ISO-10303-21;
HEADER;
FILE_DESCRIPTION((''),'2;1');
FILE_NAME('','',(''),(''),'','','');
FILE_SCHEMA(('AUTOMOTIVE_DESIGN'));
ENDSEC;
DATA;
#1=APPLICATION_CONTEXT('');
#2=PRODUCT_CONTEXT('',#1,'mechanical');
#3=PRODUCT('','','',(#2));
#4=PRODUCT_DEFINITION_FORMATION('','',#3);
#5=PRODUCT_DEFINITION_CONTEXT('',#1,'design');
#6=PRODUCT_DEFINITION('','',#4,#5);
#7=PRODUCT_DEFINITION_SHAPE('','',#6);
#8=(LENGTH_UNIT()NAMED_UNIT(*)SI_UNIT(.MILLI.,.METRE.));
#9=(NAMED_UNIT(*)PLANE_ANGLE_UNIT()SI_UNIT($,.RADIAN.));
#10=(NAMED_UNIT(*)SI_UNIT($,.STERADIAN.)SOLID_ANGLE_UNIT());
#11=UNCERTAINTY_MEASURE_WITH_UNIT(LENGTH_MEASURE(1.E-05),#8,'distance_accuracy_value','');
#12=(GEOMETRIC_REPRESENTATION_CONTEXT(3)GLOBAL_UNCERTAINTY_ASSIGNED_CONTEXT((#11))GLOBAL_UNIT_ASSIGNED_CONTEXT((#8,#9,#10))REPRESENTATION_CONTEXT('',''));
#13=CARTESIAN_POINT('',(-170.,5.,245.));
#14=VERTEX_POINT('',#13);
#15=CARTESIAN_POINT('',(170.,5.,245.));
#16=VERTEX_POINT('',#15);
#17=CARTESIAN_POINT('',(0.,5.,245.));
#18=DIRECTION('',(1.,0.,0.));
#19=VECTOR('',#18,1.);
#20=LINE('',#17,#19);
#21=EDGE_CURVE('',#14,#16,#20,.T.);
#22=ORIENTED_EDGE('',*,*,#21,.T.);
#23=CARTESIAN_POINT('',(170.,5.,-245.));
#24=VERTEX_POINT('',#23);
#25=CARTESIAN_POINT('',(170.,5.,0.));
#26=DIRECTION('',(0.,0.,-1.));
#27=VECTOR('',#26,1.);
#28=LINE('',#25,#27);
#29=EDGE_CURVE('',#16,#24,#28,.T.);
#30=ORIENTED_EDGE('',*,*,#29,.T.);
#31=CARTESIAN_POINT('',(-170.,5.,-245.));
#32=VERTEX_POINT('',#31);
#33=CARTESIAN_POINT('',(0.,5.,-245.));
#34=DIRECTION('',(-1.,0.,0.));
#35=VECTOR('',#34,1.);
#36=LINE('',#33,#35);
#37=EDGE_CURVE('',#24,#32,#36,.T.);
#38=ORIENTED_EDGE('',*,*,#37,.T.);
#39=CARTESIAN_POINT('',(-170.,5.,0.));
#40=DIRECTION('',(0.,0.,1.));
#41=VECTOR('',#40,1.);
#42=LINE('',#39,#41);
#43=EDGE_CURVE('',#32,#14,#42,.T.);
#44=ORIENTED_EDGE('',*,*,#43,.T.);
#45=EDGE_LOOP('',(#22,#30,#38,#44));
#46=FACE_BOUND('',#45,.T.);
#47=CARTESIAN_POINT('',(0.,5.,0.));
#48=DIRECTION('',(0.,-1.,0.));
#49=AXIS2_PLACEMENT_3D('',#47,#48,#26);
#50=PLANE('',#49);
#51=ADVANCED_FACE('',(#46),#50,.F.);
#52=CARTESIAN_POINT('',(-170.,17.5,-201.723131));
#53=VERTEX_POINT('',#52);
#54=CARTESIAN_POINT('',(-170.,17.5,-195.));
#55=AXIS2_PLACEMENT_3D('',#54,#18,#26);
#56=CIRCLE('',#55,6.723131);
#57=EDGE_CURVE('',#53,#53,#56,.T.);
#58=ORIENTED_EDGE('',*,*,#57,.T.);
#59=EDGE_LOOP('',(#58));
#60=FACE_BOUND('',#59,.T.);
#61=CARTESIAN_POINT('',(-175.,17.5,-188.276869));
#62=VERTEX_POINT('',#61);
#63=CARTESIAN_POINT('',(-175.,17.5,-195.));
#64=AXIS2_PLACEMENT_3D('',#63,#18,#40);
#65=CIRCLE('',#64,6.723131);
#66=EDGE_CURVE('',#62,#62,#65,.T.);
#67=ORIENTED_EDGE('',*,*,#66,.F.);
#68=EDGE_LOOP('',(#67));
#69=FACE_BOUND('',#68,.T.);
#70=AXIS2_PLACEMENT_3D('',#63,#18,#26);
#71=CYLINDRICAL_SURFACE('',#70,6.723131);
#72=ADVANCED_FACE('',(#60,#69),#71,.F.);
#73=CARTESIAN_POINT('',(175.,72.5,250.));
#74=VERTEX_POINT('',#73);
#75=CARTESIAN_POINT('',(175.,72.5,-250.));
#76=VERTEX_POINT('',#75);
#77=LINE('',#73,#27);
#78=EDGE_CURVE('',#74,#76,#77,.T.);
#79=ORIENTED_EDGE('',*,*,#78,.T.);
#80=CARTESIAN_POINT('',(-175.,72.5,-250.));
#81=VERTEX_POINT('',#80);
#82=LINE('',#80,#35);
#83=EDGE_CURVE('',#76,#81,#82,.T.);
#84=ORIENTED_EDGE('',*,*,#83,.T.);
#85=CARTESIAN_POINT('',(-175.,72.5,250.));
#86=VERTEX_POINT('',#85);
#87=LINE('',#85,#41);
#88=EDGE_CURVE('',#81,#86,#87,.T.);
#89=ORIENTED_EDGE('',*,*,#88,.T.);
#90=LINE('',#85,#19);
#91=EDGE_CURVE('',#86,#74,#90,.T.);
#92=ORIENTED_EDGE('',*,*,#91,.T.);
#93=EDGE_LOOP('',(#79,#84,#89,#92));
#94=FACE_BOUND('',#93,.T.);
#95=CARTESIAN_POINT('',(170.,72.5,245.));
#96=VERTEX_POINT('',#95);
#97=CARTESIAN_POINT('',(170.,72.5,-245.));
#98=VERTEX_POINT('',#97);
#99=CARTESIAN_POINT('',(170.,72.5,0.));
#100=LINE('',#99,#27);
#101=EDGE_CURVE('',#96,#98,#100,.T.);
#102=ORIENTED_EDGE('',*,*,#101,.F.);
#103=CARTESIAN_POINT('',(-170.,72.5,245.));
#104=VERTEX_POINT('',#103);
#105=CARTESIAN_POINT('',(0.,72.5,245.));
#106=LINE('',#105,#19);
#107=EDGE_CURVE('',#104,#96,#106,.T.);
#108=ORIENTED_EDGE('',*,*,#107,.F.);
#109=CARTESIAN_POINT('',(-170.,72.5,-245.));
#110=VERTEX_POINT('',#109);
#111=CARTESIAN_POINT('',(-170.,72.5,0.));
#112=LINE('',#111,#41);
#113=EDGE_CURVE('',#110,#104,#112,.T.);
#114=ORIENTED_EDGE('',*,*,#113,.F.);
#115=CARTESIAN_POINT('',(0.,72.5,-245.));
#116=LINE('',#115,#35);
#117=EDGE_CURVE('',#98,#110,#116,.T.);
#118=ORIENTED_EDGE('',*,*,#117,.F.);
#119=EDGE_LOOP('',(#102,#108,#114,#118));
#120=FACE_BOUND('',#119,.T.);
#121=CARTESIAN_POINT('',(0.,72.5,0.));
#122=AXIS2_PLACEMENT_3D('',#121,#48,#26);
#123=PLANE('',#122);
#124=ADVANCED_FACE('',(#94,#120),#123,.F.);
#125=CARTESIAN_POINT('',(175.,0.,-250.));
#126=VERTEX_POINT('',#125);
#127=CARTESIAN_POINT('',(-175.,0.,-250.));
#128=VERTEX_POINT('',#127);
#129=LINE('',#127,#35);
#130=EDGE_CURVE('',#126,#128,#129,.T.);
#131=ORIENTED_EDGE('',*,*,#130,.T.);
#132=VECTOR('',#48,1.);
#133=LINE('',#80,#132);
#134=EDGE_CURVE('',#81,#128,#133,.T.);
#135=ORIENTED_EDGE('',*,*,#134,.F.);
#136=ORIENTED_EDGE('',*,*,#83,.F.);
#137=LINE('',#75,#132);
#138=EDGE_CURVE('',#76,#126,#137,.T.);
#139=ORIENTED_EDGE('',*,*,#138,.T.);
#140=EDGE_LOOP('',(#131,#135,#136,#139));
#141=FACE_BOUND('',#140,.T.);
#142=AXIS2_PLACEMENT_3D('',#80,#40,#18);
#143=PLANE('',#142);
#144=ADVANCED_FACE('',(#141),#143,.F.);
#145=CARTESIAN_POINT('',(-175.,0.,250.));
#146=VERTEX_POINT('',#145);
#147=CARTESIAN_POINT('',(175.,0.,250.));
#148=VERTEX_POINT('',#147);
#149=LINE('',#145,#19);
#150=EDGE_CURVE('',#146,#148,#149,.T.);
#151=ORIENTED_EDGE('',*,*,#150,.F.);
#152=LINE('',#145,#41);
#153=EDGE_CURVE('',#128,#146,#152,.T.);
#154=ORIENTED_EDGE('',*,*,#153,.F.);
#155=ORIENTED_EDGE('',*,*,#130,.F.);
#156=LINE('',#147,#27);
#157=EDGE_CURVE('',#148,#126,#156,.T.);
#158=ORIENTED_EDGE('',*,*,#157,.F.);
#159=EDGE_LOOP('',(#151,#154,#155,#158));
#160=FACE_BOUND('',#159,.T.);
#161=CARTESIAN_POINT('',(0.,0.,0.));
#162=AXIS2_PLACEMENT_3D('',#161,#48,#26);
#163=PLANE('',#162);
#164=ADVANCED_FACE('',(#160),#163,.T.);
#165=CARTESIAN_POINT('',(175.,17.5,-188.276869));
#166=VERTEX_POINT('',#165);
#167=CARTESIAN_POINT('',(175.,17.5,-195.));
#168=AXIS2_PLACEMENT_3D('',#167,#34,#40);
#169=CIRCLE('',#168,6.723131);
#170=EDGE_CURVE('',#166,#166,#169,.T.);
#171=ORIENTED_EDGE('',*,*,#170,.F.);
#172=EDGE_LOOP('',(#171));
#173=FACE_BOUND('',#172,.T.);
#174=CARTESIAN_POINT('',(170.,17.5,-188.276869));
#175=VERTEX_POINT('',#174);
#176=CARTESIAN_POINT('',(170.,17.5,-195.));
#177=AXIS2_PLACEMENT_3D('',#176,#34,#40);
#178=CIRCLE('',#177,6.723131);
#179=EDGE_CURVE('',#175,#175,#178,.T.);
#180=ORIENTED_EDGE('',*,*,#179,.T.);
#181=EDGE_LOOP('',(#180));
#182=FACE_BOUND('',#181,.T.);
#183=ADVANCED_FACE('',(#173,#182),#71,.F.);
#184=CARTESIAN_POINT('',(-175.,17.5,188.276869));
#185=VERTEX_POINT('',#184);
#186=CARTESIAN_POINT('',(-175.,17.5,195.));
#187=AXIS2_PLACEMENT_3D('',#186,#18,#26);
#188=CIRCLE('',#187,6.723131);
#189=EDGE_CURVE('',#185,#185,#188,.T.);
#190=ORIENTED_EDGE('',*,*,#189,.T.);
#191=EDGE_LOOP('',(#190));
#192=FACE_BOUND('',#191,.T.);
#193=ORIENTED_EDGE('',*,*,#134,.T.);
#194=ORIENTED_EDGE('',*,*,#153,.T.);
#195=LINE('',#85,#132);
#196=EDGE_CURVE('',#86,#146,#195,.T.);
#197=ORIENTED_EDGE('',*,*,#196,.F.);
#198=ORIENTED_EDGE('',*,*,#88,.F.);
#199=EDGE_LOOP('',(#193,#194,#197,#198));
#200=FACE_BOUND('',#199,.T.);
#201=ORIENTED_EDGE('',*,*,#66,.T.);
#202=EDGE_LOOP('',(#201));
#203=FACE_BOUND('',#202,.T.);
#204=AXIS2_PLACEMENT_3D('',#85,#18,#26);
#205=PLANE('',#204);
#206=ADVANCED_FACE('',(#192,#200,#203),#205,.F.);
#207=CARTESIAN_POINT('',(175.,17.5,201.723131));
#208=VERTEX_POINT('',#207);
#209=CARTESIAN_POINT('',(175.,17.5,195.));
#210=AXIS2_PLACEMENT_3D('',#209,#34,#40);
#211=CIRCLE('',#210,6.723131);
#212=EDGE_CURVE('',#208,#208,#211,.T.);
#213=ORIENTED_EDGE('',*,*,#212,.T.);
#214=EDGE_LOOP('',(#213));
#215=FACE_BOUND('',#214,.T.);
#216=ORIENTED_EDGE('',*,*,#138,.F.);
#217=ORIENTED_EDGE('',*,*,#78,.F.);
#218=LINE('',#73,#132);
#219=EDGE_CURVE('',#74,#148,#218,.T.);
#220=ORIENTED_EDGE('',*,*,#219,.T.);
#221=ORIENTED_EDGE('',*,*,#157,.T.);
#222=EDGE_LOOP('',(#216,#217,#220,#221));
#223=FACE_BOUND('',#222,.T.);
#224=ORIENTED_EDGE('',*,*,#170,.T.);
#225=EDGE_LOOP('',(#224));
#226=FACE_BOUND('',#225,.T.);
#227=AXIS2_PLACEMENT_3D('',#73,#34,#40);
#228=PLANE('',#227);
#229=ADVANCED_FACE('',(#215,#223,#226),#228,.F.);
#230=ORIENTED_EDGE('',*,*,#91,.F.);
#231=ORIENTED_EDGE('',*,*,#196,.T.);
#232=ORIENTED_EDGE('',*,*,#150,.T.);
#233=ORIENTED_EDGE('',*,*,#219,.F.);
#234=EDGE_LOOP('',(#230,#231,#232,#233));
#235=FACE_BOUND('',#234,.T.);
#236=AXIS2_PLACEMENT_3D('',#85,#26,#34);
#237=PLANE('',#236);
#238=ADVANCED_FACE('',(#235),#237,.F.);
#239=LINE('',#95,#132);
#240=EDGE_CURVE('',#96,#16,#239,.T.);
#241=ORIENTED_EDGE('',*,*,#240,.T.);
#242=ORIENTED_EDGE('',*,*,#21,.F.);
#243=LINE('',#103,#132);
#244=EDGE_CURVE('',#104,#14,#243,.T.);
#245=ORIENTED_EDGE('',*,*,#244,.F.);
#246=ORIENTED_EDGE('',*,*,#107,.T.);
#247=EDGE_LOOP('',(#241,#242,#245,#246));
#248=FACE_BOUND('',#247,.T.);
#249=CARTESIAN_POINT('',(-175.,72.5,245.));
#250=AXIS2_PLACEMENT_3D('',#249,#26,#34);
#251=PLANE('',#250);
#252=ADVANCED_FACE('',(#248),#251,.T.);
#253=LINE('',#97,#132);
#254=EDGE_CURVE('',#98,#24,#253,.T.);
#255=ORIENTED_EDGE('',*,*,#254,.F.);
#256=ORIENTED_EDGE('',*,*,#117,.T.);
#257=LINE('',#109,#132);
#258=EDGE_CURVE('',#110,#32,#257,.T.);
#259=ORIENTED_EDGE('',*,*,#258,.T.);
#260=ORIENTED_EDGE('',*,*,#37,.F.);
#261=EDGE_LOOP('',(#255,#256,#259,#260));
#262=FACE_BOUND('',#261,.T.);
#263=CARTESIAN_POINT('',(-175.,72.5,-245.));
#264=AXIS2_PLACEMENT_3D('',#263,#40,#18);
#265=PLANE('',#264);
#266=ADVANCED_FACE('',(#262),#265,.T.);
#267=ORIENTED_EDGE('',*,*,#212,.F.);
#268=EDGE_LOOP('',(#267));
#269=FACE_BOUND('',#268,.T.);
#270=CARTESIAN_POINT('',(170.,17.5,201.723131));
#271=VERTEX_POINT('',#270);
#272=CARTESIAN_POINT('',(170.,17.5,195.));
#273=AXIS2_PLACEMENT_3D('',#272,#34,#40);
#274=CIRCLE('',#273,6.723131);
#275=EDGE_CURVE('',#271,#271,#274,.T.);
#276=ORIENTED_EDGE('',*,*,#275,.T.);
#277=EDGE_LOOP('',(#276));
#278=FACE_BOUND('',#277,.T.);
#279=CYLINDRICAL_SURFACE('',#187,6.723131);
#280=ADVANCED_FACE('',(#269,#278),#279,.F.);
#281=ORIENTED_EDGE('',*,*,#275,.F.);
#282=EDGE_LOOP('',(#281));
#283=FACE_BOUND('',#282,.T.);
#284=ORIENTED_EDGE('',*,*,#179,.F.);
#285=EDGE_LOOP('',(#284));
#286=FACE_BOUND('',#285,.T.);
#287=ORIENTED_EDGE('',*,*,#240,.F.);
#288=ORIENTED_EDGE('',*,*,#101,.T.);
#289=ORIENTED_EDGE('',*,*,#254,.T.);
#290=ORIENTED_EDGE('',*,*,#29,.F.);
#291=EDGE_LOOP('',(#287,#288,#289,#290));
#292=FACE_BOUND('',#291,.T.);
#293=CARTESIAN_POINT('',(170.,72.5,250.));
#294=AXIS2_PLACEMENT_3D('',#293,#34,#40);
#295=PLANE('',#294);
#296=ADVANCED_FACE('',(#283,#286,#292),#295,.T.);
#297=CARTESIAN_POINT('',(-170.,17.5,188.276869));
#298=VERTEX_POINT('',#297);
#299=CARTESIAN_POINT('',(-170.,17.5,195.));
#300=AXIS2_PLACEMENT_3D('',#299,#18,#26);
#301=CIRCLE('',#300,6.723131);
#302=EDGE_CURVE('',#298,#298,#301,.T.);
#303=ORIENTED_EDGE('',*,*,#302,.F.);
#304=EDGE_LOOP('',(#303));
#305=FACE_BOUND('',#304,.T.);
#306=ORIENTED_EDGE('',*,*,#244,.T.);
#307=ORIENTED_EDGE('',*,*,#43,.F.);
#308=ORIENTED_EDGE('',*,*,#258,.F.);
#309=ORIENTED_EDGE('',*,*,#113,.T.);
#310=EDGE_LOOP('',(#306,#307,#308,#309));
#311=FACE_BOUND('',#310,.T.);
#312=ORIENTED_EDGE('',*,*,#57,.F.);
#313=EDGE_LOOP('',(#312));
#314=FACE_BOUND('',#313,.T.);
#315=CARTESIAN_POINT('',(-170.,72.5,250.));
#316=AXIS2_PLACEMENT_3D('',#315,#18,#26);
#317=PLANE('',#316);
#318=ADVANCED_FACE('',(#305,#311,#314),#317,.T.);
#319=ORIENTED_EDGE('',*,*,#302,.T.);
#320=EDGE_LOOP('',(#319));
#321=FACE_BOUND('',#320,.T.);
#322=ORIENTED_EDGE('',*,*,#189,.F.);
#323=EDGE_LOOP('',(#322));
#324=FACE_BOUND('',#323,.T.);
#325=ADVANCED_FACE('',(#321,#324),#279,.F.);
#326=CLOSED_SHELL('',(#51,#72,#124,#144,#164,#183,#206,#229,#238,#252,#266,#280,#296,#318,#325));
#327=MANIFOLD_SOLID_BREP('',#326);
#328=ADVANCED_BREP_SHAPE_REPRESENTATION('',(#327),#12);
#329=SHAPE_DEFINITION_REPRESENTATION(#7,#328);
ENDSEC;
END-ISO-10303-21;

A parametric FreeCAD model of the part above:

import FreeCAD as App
import Part
import Sketcher


def faces_at(feature, points):
    """Names of the faces that lie closest to the given points."""
    faces = feature.Shape.Faces
    near = lambda p: min(range(len(faces)), key=lambda i: faces[i].distToShape(Part.Vertex(*p))[0])
    return sorted({f"Face{near(p) + 1}" for p in points})


def add_polygon(sketch, points):
    """Adds a closed chain of lines whose ends are joined by coincident constraints."""
    first, n = sketch.GeometryCount, len(points)
    for a, b in zip(points, points[1:] + points[:1]):
        sketch.addGeometry(Part.LineSegment(App.Vector(*a, 0), App.Vector(*b, 0)), False)
    for i in range(n):
        sketch.addConstraint(Sketcher.Constraint("Coincident", first + i, 2, first + (i + 1) % n, 1))

doc = App.newDocument("Part")
body = doc.addObject("PartDesign::Body", "Body")

# Sketch on XZ plane
sketch1 = body.newObject("Sketcher::SketchObject", "Sketch")
sketch1.AttachmentSupport = (doc.getObject("XZ_Plane"), [""])
sketch1.MapMode = "FlatFace"
add_polygon(sketch1, [(-175, -250), (-175, 250), (175, 250), (175, -250)])  # lines 0-3
sketch1.addConstraint([
    Sketcher.Constraint("Vertical", 0),
    Sketcher.Constraint("Horizontal", 1),
    Sketcher.Constraint("Vertical", 2),
    Sketcher.Constraint("Horizontal", 3),
    Sketcher.Constraint("Symmetric", 0, 2, 2, 2, -1, 1),
    Sketcher.Constraint("DistanceX", 1, 1, 1, 2, 350.0),
    Sketcher.Constraint("DistanceY", 0, 1, 0, 2, 500.0),
])
pad1 = body.newObject("PartDesign::Pad", "Pad")
pad1.Profile = sketch1
pad1.Length = 72.5
pad1.Reversed = True
doc.recompute()

thickness = body.newObject("PartDesign::Thickness", "Thickness")
thickness.Base = (pad1, faces_at(pad1, [(0, 72.5, 0)]))
thickness.Value = 5
thickness.Reversed = True
thickness.Join = "Intersection"

# Sketch on YZ plane
sketch2 = body.newObject("Sketcher::SketchObject", "Sketch001")
sketch2.AttachmentSupport = (doc.getObject("YZ_Plane"), [""])
sketch2.MapMode = "FlatFace"
sketch2.AttachmentOffset = App.Placement(App.Vector(0, 0, 175), App.Rotation())
sketch2.addGeometry([
    Part.Circle(App.Vector(17.5, 195, 0), App.Vector(0, 0, 1), 6.723131),
    Part.Circle(App.Vector(17.5, -195, 0), App.Vector(0, 0, 1), 6.723131),
], False)
sketch2.addConstraint([
    Sketcher.Constraint("Equal", 0, 1),
    Sketcher.Constraint("Symmetric", 0, 3, 1, 3, -1),
    Sketcher.Constraint("DistanceY", -1, 1, 0, 3, 195.0),
    Sketcher.Constraint("DistanceX", -1, 1, 0, 3, 17.5),
    Sketcher.Constraint("Diameter", 0, 13.446262),
])
pocket1 = body.newObject("PartDesign::Pocket", "Pocket")
pocket1.Profile = sketch2
pocket1.Type = "ThroughAll"
pocket1.Midplane = True

doc.recompute()
